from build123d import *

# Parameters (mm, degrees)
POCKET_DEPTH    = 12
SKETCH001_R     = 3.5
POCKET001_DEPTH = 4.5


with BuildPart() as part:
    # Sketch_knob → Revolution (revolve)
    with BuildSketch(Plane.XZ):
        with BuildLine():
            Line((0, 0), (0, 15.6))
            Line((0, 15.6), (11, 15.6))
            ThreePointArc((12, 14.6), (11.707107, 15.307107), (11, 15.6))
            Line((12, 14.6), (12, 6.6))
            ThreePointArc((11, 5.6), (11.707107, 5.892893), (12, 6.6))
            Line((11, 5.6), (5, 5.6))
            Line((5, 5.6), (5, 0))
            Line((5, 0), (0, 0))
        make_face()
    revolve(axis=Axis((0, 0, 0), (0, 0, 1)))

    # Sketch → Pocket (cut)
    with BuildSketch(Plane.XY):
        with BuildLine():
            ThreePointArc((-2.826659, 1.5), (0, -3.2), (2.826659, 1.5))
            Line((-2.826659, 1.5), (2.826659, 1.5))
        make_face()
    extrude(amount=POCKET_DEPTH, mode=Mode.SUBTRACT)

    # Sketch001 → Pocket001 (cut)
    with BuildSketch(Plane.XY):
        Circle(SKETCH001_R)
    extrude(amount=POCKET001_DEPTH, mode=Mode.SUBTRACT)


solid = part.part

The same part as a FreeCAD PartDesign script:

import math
import FreeCAD as App
import Part
import Sketcher

V = App.Vector

doc = App.newDocument("Part")
body = doc.addObject("PartDesign::Body", "Body")

# Sketch on XZ plane
sketch1 = body.newObject("Sketcher::SketchObject", "Sketch")
sketch1.AttachmentSupport = (doc.getObject("XZ_Plane"), [""])
sketch1.MapMode = "FlatFace"
sketch1.addGeometry([
    Part.LineSegment(V(0, 15.6, 0), V(0, 0, 0)),  # 0
    Part.LineSegment(V(0, 0, 0), V(5, 0, 0)),  # 1
    Part.LineSegment(V(5, 0, 0), V(5, 5.6, 0)),  # 2
    Part.LineSegment(V(5, 5.6, 0), V(11, 5.6, 0)),  # 3
    Part.ArcOfCircle(Part.Circle(V(11.000001, 6.599999, 0), V(0, 0, 1), 0.999999), math.radians(-90.000043), math.radians(0.000043)),  # 4
    Part.LineSegment(V(12, 6.6, 0), V(12, 14.6, 0)),  # 5
    Part.ArcOfCircle(Part.Circle(V(11.000001, 14.600001, 0), V(0, 0, 1), 0.999999), math.radians(-0.000043), math.radians(90.000043)),  # 6
    Part.LineSegment(V(11, 15.6, 0), V(0, 15.6, 0)),  # 7
], False)
sketch1.addConstraint([
    Sketcher.Constraint("Coincident", 0, 2, 1, 1),
    Sketcher.Constraint("Coincident", 1, 2, 2, 1),
    Sketcher.Constraint("Coincident", 2, 2, 3, 1),
    Sketcher.Constraint("Tangent", 3, 2, 4, 1),
    Sketcher.Constraint("Tangent", 4, 2, 5, 1),
    Sketcher.Constraint("Tangent", 5, 2, 6, 1),
    Sketcher.Constraint("Tangent", 6, 2, 7, 1),
    Sketcher.Constraint("Coincident", 7, 2, 0, 1),
    Sketcher.Constraint("Vertical", 0),
    Sketcher.Constraint("Horizontal", 1),
    Sketcher.Constraint("Vertical", 2),
    Sketcher.Constraint("Horizontal", 3),
    Sketcher.Constraint("Vertical", 5),
    Sketcher.Constraint("Horizontal", 7),
    Sketcher.Constraint("Coincident", 0, 2, -1, 1),
    Sketcher.Constraint("Equal", 4, 6),
    Sketcher.Constraint("Radius", 4, 0.999999),
    Sketcher.Constraint("DistanceX", 1, 1, 1, 2, 5.0),
    Sketcher.Constraint("DistanceX", 3, 1, 3, 2, 6.0),
    Sketcher.Constraint("DistanceY", 5, 1, 5, 2, 8.0),
    Sketcher.Constraint("DistanceY", 0, 2, 0, 1, 15.6),
])
revolution = body.newObject("PartDesign::Revolution", "Revolution")
revolution.Profile = sketch1
revolution.ReferenceAxis = (sketch1, ["V_Axis"])
revolution.Angle = 360

# Sketch on XY plane
sketch2 = body.newObject("Sketcher::SketchObject", "Sketch001")
sketch2.AttachmentSupport = (doc.getObject("XY_Plane"), [""])
sketch2.MapMode = "FlatFace"
sketch2.addGeometry([
    Part.ArcOfCircle(Part.Circle(V(0, 0, 0), V(0, 0, 1), 3.2), math.radians(152.046817), math.radians(387.953183)),
    Part.LineSegment(V(2.826659, 1.5, 0), V(-2.826659, 1.5, 0)),
], False)
sketch2.addConstraint([
    Sketcher.Constraint("Coincident", 0, 1, 1, 2),
    Sketcher.Constraint("Coincident", 1, 1, 0, 2),
    Sketcher.Constraint("Horizontal", 1),
    Sketcher.Constraint("Coincident", 0, 3, -1, 1),
    Sketcher.Constraint("Radius", 0, 3.2),
    Sketcher.Constraint("DistanceY", -1, 1, 0, 1, 1.5),
])
pocket1 = body.newObject("PartDesign::Pocket", "Pocket")
pocket1.Profile = sketch2
pocket1.Length = 12
pocket1.Reversed = True

# Sketch on XY plane
sketch3 = body.newObject("Sketcher::SketchObject", "Sketch002")
sketch3.AttachmentSupport = (doc.getObject("XY_Plane"), [""])
sketch3.MapMode = "FlatFace"
sketch3.addGeometry(Part.Circle(V(0, 0, 0), V(0, 0, 1), 3.5), False)
sketch3.addConstraint([
    Sketcher.Constraint("Coincident", 0, 3, -1, 1),
    Sketcher.Constraint("Diameter", 0, 7.0),
])
pocket2 = body.newObject("PartDesign::Pocket", "Pocket001")
pocket2.Profile = sketch3
pocket2.Length = 4.5
pocket2.Reversed = True

doc.recompute()
